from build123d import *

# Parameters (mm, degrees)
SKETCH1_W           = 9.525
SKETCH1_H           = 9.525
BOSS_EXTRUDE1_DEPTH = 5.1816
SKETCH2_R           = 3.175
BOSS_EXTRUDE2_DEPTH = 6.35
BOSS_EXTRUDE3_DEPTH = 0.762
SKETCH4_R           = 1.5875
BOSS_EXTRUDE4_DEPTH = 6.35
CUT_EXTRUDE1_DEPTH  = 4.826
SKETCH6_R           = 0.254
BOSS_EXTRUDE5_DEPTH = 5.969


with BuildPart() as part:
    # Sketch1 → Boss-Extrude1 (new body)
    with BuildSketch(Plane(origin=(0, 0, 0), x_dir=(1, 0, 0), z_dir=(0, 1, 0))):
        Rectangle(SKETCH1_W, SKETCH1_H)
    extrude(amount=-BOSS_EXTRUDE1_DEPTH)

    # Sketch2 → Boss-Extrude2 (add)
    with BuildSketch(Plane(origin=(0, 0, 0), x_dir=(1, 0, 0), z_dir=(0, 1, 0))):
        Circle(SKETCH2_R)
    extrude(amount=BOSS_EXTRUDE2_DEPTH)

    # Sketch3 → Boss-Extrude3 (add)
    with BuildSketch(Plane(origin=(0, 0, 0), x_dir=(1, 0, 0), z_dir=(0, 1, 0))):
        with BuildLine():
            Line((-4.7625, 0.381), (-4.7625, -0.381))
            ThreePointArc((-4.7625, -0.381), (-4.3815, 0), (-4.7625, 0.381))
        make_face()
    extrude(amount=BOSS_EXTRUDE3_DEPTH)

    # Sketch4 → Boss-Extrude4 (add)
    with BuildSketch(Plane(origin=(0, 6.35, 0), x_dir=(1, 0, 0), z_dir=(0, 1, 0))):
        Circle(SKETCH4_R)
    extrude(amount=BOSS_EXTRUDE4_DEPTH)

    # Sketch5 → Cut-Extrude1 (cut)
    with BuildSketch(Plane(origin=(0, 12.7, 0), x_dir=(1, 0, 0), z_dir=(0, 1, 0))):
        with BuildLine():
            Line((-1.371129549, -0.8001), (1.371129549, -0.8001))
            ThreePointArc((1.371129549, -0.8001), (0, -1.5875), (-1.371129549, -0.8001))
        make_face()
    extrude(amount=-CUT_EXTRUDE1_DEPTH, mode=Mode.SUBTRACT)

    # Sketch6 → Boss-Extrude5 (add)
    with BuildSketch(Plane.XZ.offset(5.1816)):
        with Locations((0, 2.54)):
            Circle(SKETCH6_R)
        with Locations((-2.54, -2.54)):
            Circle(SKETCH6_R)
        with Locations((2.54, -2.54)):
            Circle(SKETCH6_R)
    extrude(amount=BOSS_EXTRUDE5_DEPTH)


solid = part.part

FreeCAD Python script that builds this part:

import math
import FreeCAD as App
import Part
import Sketcher
Q = App.Units.Quantity

doc = App.newDocument("Part")
body = doc.addObject("PartDesign::Body", "Body")

# Sketch on XZ plane
sketch1 = body.newObject("Sketcher::SketchObject", "Sketch")
sketch1.AttachmentSupport = (doc.getObject("XZ_Plane"), [""])
sketch1.MapMode = "FlatFace"
sketch1.addGeometry(Part.LineSegment(App.Vector(-5, -5, 0), App.Vector(-5, 5, 0)), False)
sketch1.addGeometry(Part.LineSegment(App.Vector(-5, 5, 0), App.Vector(5, 5, 0)), False)
sketch1.addGeometry(Part.LineSegment(App.Vector(5, 5, 0), App.Vector(5, -5, 0)), False)
sketch1.addGeometry(Part.LineSegment(App.Vector(5, -5, 0), App.Vector(-5, -5, 0)), False)
sketch1.addConstraint(Sketcher.Constraint("Coincident", 0, 2, 1, 1))
sketch1.addConstraint(Sketcher.Constraint("Coincident", 1, 2, 2, 1))
sketch1.addConstraint(Sketcher.Constraint("Coincident", 2, 2, 3, 1))
sketch1.addConstraint(Sketcher.Constraint("Coincident", 3, 2, 0, 1))
sketch1.addConstraint(Sketcher.Constraint("Vertical", 0))
sketch1.addConstraint(Sketcher.Constraint("Horizontal", 1))
sketch1.addConstraint(Sketcher.Constraint("Vertical", 2))
sketch1.addConstraint(Sketcher.Constraint("Horizontal", 3))
sketch1.addConstraint(Sketcher.Constraint("Symmetric", 0, 2, 2, 2, -1, 1))
sketch1.addConstraint(Sketcher.Constraint("Equal", 3, 0))
sketch1.addConstraint(Sketcher.Constraint("DistanceX", 1, 1, 1, 2, Q("0.375 in")))
pad1 = body.newObject("PartDesign::Pad", "Pad")
pad1.Profile = sketch1
pad1.Length = Q("0.204 in")

# Sketch on XZ plane
sketch2 = body.newObject("Sketcher::SketchObject", "Sketch001")
sketch2.AttachmentSupport = (doc.getObject("XZ_Plane"), [""])
sketch2.MapMode = "FlatFace"
sketch2.addGeometry(Part.Circle(App.Vector(0, 0, 0), App.Vector(0, 0, 1), 3.2), False)
sketch2.addConstraint(Sketcher.Constraint("Coincident", 0, 3, -1, 1))
sketch2.addConstraint(Sketcher.Constraint("Diameter", 0, Q("0.25 in")))
pad2 = body.newObject("PartDesign::Pad", "Pad001")
pad2.Profile = sketch2
pad2.Length = Q("0.25 in")
pad2.Reversed = True

# Sketch on XZ plane
sketch3 = body.newObject("Sketcher::SketchObject", "Sketch002")
sketch3.AttachmentSupport = (doc.getObject("XZ_Plane"), [""])
sketch3.MapMode = "FlatFace"
sketch3.addGeometry(Part.LineSegment(App.Vector(-4.76, -0.38, 0), App.Vector(-4.76, 0.38, 0)), False)
sketch3.addGeometry(Part.ArcOfCircle(Part.Circle(App.Vector(-4.76, 0, 0), App.Vector(0, 0, 1), 0.38), math.radians(-90), math.radians(90)), False)
sketch3.addConstraint(Sketcher.Constraint("Coincident", 0, 1, 1, 1))
sketch3.addConstraint(Sketcher.Constraint("Coincident", 1, 2, 0, 2))
sketch3.addConstraint(Sketcher.Constraint("Vertical", 0))
sketch3.addConstraint(Sketcher.Constraint("PointOnObject", 1, 3, -1))
sketch3.addConstraint(Sketcher.Constraint("Vertical", 1, 3, 0, 1))
sketch3.addConstraint(Sketcher.Constraint("Radius", 1, Q("0.015 in")))
sketch3.addConstraint(Sketcher.Constraint("DistanceX", 1, 3, -1, 1, Q("0.1875 in")))
pad3 = body.newObject("PartDesign::Pad", "Pad002")
pad3.Profile = sketch3
pad3.Length = Q("0.03 in")
pad3.Reversed = True

# Sketch on XZ plane
sketch4 = body.newObject("Sketcher::SketchObject", "Sketch003")
sketch4.AttachmentSupport = (doc.getObject("XZ_Plane"), [""])
sketch4.MapMode = "FlatFace"
sketch4.AttachmentOffset = App.Placement(App.Vector(0, 0, -0.25 * 25.4), App.Rotation())
sketch4.addGeometry(Part.Circle(App.Vector(0, 0, 0), App.Vector(0, 0, 1), 1.6), False)
sketch4.addConstraint(Sketcher.Constraint("Coincident", 0, 3, -1, 1))
sketch4.addConstraint(Sketcher.Constraint("Diameter", 0, Q("0.125 in")))
pad4 = body.newObject("PartDesign::Pad", "Pad003")
pad4.Profile = sketch4
pad4.Length = Q("0.25 in")
pad4.Reversed = True

# Sketch on XZ plane
sketch5 = body.newObject("Sketcher::SketchObject", "Sketch004")
sketch5.AttachmentSupport = (doc.getObject("XZ_Plane"), [""])
sketch5.MapMode = "FlatFace"
sketch5.AttachmentOffset = App.Placement(App.Vector(0, 0, -0.5 * 25.4), App.Rotation())
sketch5.addGeometry(Part.LineSegment(App.Vector(1.4, 0.8, 0), App.Vector(-1.4, 0.8, 0)), False)
sketch5.addGeometry(Part.ArcOfCircle(Part.Circle(App.Vector(0, 0, 0), App.Vector(0, 0, 1), 1.6), math.radians(30), math.radians(150)), False)
sketch5.addConstraint(Sketcher.Constraint("Coincident", 0, 1, 1, 1))
sketch5.addConstraint(Sketcher.Constraint("Coincident", 1, 2, 0, 2))
sketch5.addConstraint(Sketcher.Constraint("Horizontal", 0))
sketch5.addConstraint(Sketcher.Constraint("Coincident", 1, 3, -1, 1))
sketch5.addConstraint(Sketcher.Constraint("Radius", 1, Q("0.0625 in")))
sketch5.addConstraint(Sketcher.Constraint("DistanceY", -1, 1, 0, 1, Q("0.0315 in")))
pocket1 = body.newObject("PartDesign::Pocket", "Pocket")
pocket1.Profile = sketch5
pocket1.Length = Q("0.19 in")
pocket1.Reversed = True

# Sketch on XZ plane
sketch6 = body.newObject("Sketcher::SketchObject", "Sketch005")
sketch6.AttachmentSupport = (doc.getObject("XZ_Plane"), [""])
sketch6.MapMode = "FlatFace"
sketch6.AttachmentOffset = App.Placement(App.Vector(0, 0, 0.204 * 25.4), App.Rotation())
sketch6.addGeometry(Part.Circle(App.Vector(0, 2.54, 0), App.Vector(0, 0, 1), 0.25), False)
sketch6.addGeometry(Part.Circle(App.Vector(-2.54, -2.54, 0), App.Vector(0, 0, 1), 0.25), False)
sketch6.addGeometry(Part.Circle(App.Vector(2.54, -2.54, 0), App.Vector(0, 0, 1), 0.25), False)
sketch6.addConstraint(Sketcher.Constraint("Equal", 0, 1))
sketch6.addConstraint(Sketcher.Constraint("Equal", 1, 2))
sketch6.addConstraint(Sketcher.Constraint("Symmetric", 1, 3, 2, 3, -2))
sketch6.addConstraint(Sketcher.Constraint("PointOnObject", 0, 3, -2))
sketch6.addConstraint(Sketcher.Constraint("Diameter", 0, Q("0.02 in")))
sketch6.addConstraint(Sketcher.Constraint("DistanceY", -1, 1, 0, 3, Q("0.1 in")))
sketch6.addConstraint(Sketcher.Constraint("DistanceX", 1, 3, -1, 1, Q("0.1 in")))
sketch6.addConstraint(Sketcher.Constraint("DistanceY", 1, 3, -1, 1, Q("0.1 in")))
pad5 = body.newObject("PartDesign::Pad", "Pad004")
pad5.Profile = sketch6
pad5.Length = Q("0.235 in")

doc.recompute()
